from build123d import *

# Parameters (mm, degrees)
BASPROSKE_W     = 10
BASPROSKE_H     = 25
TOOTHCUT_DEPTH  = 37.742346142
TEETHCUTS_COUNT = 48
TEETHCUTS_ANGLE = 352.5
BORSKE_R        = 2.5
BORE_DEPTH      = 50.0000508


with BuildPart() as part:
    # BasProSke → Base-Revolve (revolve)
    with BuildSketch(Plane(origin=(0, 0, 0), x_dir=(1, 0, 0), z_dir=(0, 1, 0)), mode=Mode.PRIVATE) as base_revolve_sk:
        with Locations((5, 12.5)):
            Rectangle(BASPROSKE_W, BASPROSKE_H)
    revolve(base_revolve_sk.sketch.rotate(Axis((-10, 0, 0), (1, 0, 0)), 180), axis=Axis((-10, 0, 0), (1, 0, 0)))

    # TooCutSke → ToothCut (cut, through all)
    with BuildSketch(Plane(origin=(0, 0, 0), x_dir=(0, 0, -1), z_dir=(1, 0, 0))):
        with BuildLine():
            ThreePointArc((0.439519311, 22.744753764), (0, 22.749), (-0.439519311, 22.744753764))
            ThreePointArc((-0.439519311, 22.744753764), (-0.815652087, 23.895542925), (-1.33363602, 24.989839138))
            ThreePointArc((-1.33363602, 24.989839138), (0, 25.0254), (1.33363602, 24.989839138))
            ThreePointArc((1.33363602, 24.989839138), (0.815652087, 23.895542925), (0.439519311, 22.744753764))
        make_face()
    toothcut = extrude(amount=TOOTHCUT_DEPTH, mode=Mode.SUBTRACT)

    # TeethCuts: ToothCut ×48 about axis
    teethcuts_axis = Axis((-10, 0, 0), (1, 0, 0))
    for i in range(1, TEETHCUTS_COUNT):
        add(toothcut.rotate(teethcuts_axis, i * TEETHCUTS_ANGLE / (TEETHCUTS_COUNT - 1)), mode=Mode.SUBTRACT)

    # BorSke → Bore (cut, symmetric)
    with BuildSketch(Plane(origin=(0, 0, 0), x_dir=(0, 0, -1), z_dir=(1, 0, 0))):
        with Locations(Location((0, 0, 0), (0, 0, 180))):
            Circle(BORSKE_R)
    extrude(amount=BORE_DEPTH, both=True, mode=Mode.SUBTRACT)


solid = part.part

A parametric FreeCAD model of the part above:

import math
import FreeCAD as App
import Part
import Sketcher

V = App.Vector

doc = App.newDocument("Part")
body = doc.addObject("PartDesign::Body", "Body")

sketch1 = body.newObject("Sketcher::SketchObject", "Sketch")
sketch1.AttachmentSupport = (doc.getObject("XZ_Plane"), [""])
sketch1.MapMode = "FlatFace"
sketch1.addGeometry([
    Part.LineSegment(V(0, -25, 0), V(0, 0, 0)),
    Part.LineSegment(V(0, 0, 0), V(10, 0, 0)),
    Part.LineSegment(V(10, 0, 0), V(10, -25, 0)),
    Part.LineSegment(V(10, -25, 0), V(0, -25, 0)),
], False)
sketch1.addConstraint([
    Sketcher.Constraint("Coincident", 0, 2, 1, 1),
    Sketcher.Constraint("Coincident", 1, 2, 2, 1),
    Sketcher.Constraint("Coincident", 2, 2, 3, 1),
    Sketcher.Constraint("Coincident", 3, 2, 0, 1),
    Sketcher.Constraint("Vertical", 0),
    Sketcher.Constraint("Horizontal", 1),
    Sketcher.Constraint("Vertical", 2),
    Sketcher.Constraint("Horizontal", 3),
    Sketcher.Constraint("Coincident", 0, 2, -1, 1),
    Sketcher.Constraint("DistanceX", 1, 1, 1, 2, 10.0),
    Sketcher.Constraint("DistanceY", 0, 1, 0, 2, 25.0),
])
revolution = body.newObject("PartDesign::Revolution", "Revolution")
revolution.Profile = sketch1
revolution.ReferenceAxis = (sketch1, ["H_Axis"])
revolution.Angle = 360

sketch2 = body.newObject("Sketcher::SketchObject", "Sketch001")
sketch2.AttachmentSupport = (doc.getObject("YZ_Plane"), [""])
sketch2.MapMode = "FlatFace"
sketch2.addGeometry([
    Part.ArcOfCircle(Part.Circle(V(-0.000001, 0, 0), V(0, 0, 1), 22.749001), math.radians(-1.107045), math.radians(1.107045)),
    Part.ArcOfCircle(Part.Circle(V(20.343612, -9.734385, 0), V(0, 0, 1), 9.6), math.radians(61.054205), math.radians(75.515451)),
    Part.ArcOfCircle(Part.Circle(V(0, 0, 0), V(0, 0, 1), 25.0254), math.radians(-3.054813), math.radians(3.054813)),
    Part.ArcOfCircle(Part.Circle(V(20.343612, 9.734385, 0), V(0, 0, 1), 9.6), math.radians(-75.515451), math.radians(-61.054205)),
], False)
sketch2.addConstraint([
    Sketcher.Constraint("Coincident", 0, 1, 1, 2),
    Sketcher.Constraint("Coincident", 1, 1, 2, 1),
    Sketcher.Constraint("Coincident", 2, 2, 3, 2),
    Sketcher.Constraint("Coincident", 3, 1, 0, 2),
    Sketcher.Constraint("Coincident", 0, 3, -1, 1),
    Sketcher.Constraint("Coincident", 2, 3, -1, 1),
    Sketcher.Constraint("Equal", 1, 3),
    Sketcher.Constraint("Symmetric", 1, 3, 3, 3, -1),
    Sketcher.Constraint("Radius", 1, 9.6),
    Sketcher.Constraint("Radius", 0, 22.749001),
    Sketcher.Constraint("Radius", 2, 25.0254),
    Sketcher.Constraint("DistanceY", 0, 1, -1, 1, 0.439519),
    Sketcher.Constraint("DistanceX", -1, 1, 2, 2, 24.989839),
])
pocket1 = body.newObject("PartDesign::Pocket", "Pocket")
pocket1.Profile = sketch2
pocket1.Type = "ThroughAll"
pocket1.Reversed = True
doc.recompute()

polarpattern = body.newObject("PartDesign::PolarPattern", "PolarPattern")
polarpattern.Originals = [pocket1]
polarpattern.Axis = (doc.getObject("X_Axis"), [""])
polarpattern.Angle = 360
polarpattern.Occurrences = 48
body.Tip = polarpattern

sketch3 = body.newObject("Sketcher::SketchObject", "Sketch002")
sketch3.AttachmentSupport = (doc.getObject("YZ_Plane"), [""])
sketch3.MapMode = "FlatFace"
sketch3.addGeometry(Part.Circle(V(0, 0, 0), V(0, 0, 1), 2.5), False)
sketch3.addConstraint([
    Sketcher.Constraint("Coincident", 0, 3, -1, 1),
    Sketcher.Constraint("Diameter", 0, 5.0),
])
pocket2 = body.newObject("PartDesign::Pocket", "Pocket001")
pocket2.Profile = sketch3
pocket2.Length = 100.000102
pocket2.Midplane = True

doc.recompute()
